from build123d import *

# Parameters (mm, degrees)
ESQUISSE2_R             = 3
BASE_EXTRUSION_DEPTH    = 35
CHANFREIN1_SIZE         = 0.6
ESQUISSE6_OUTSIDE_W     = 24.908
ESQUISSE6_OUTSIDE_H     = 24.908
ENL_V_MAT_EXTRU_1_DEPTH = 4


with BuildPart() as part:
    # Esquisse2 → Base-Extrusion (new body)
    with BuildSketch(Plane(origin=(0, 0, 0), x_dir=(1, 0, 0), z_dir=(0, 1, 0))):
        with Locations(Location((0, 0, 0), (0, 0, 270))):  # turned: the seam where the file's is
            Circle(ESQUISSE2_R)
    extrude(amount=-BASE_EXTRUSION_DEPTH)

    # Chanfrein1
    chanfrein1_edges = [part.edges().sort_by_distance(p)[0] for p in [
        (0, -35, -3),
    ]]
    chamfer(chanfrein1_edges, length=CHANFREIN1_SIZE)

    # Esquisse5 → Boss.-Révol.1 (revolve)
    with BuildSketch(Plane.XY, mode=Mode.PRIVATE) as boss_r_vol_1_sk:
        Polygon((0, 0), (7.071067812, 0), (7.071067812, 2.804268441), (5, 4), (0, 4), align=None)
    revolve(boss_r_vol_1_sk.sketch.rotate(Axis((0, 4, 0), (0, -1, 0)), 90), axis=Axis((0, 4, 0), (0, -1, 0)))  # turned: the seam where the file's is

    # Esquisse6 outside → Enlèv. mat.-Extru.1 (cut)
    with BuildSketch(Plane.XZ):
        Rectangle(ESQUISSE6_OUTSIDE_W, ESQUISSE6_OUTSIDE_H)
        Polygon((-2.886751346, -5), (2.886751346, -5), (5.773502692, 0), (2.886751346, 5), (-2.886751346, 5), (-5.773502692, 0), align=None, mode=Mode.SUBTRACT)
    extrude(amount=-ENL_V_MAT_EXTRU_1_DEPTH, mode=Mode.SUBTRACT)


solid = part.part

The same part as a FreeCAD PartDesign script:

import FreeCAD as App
import Part
import Sketcher

V = App.Vector
Q = App.Units.Quantity


def edges_at(feature, points):
    """Names of the edges that pass closest to the given points."""
    edges = feature.Shape.Edges
    near = lambda p: min(range(len(edges)), key=lambda i: edges[i].distToShape(Part.Vertex(*p))[0])
    return sorted({f"Edge{near(p) + 1}" for p in points})


def add_polygon(sketch, points):
    """Adds a closed chain of lines whose ends are joined by coincident constraints."""
    first, n = sketch.GeometryCount, len(points)
    for a, b in zip(points, points[1:] + points[:1]):
        sketch.addGeometry(Part.LineSegment(App.Vector(*a, 0), App.Vector(*b, 0)), False)
    for i in range(n):
        sketch.addConstraint(Sketcher.Constraint("Coincident", first + i, 2, first + (i + 1) % n, 1))

doc = App.newDocument("Part")
params = doc.addObject("Spreadsheet::Sheet", "Params")
for row, (alias, value) in enumerate([
    ("sketch1_diameter", "6 mm"),
    ("pad1_length", "35 mm"),
    ("chamfer_size", "0.6 mm"),
    ("sketch2_width", "5 mm"),
    ("sketch2_height", "4 mm"),
    ("revolution_angle", "360 deg"),
    ("pocket1_length", "4 mm"),
], start=1):
    params.set(f"A{row}", alias)
    params.set(f"B{row}", "=" + value)
    params.setAlias(f"B{row}", alias)

body = doc.addObject("PartDesign::Body", "Body")

# Sketch on XZ plane
sketch1 = body.newObject("Sketcher::SketchObject", "Sketch")
sketch1.AttachmentSupport = (doc.getObject("XZ_Plane"), [""])
sketch1.MapMode = "FlatFace"
sketch1.addGeometry(Part.Circle(V(0, 0, 0), V(0, 0, 1), 3), False)
sketch1.addConstraint([
    Sketcher.Constraint("Coincident", 0, 3, -1, 1),
    Sketcher.Constraint("Diameter", 0, 6.0),
])
sketch1.setExpression("Constraints[1]", "Params.sketch1_diameter")
pad1 = body.newObject("PartDesign::Pad", "Pad")
pad1.Profile = sketch1
pad1.setExpression("Length", "Params.pad1_length")
doc.recompute()

chamfer = body.newObject("PartDesign::Chamfer", "Chamfer")
chamfer.Base = (pad1, edges_at(pad1, [(0, -35, -3)]))
chamfer.setExpression("Size", "Params.chamfer_size")

# Sketch on XY plane
sketch2 = body.newObject("Sketcher::SketchObject", "Sketch001")
sketch2.AttachmentSupport = (doc.getObject("XY_Plane"), [""])
sketch2.MapMode = "FlatFace"
add_polygon(sketch2, [(0, 0), (7.1, 0), (7.1, 2.8), (5, 4), (0, 4)])  # lines 0-4
sketch2.addConstraint([
    Sketcher.Constraint("Horizontal", 0),
    Sketcher.Constraint("Vertical", 1),
    Sketcher.Constraint("Horizontal", 3),
    Sketcher.Constraint("Vertical", 4),
    Sketcher.Constraint("Coincident", 4, 2, -1, 1),
    Sketcher.Constraint("DistanceX", 3, 2, 3, 1, 5.0),
    Sketcher.Constraint("DistanceY", 4, 2, 4, 1, 4.0),
    Sketcher.Constraint("Angle", 2, Q("150 deg")),
    Sketcher.Constraint("DistanceY", 1, 1, 1, 2, 2.804268),
])
sketch2.setExpression("Constraints[10]", "Params.sketch2_width")
sketch2.setExpression("Constraints[11]", "Params.sketch2_height")
revolution = body.newObject("PartDesign::Revolution", "Revolution")
revolution.Profile = sketch2
revolution.ReferenceAxis = (sketch2, ["V_Axis"])
revolution.setExpression("Angle", "Params.revolution_angle")

# Sketch on XZ plane
sketch3 = body.newObject("Sketcher::SketchObject", "Sketch002")
sketch3.AttachmentSupport = (doc.getObject("XZ_Plane"), [""])
sketch3.MapMode = "FlatFace"
add_polygon(sketch3, [(-12, 12), (-12, -12), (12, -12), (12, 12)])  # lines 0-3
add_polygon(sketch3, [(3, -5), (-3, -5), (-6, 0), (-3, 5), (3, 5), (6, 0)])  # lines 4-9
sketch3.addConstraint([
    Sketcher.Constraint("Vertical", 0),
    Sketcher.Constraint("Horizontal", 1),
    Sketcher.Constraint("Vertical", 2),
    Sketcher.Constraint("Horizontal", 3),
    Sketcher.Constraint("Horizontal", 4),
    Sketcher.Constraint("Horizontal", 7),
    Sketcher.Constraint("Symmetric", 0, 2, 2, 2, -1, 1),
    Sketcher.Constraint("Symmetric", 4, 2, 7, 2, -1, 1),
    Sketcher.Constraint("Symmetric", 5, 2, 8, 2, -1, 1),
    Sketcher.Constraint("PointOnObject", 5, 2, -1),
    Sketcher.Constraint("Parallel", 6, 9),
    Sketcher.Constraint("Vertical", 4, 2, 6, 2),
    Sketcher.Constraint("Equal", 3, 0),
    Sketcher.Constraint("Angle", 5, Q("120 deg")),
    Sketcher.Constraint("DistanceY", 4, 2, -1, 1, 5.0),
    Sketcher.Constraint("DistanceX", 1, 1, 1, 2, 24.908),
    Sketcher.Constraint("DistanceX", 4, 2, 4, 1, 5.773503),
])
pocket1 = body.newObject("PartDesign::Pocket", "Pocket")
pocket1.Profile = sketch3
pocket1.setExpression("Length", "Params.pocket1_length")

doc.recompute()
